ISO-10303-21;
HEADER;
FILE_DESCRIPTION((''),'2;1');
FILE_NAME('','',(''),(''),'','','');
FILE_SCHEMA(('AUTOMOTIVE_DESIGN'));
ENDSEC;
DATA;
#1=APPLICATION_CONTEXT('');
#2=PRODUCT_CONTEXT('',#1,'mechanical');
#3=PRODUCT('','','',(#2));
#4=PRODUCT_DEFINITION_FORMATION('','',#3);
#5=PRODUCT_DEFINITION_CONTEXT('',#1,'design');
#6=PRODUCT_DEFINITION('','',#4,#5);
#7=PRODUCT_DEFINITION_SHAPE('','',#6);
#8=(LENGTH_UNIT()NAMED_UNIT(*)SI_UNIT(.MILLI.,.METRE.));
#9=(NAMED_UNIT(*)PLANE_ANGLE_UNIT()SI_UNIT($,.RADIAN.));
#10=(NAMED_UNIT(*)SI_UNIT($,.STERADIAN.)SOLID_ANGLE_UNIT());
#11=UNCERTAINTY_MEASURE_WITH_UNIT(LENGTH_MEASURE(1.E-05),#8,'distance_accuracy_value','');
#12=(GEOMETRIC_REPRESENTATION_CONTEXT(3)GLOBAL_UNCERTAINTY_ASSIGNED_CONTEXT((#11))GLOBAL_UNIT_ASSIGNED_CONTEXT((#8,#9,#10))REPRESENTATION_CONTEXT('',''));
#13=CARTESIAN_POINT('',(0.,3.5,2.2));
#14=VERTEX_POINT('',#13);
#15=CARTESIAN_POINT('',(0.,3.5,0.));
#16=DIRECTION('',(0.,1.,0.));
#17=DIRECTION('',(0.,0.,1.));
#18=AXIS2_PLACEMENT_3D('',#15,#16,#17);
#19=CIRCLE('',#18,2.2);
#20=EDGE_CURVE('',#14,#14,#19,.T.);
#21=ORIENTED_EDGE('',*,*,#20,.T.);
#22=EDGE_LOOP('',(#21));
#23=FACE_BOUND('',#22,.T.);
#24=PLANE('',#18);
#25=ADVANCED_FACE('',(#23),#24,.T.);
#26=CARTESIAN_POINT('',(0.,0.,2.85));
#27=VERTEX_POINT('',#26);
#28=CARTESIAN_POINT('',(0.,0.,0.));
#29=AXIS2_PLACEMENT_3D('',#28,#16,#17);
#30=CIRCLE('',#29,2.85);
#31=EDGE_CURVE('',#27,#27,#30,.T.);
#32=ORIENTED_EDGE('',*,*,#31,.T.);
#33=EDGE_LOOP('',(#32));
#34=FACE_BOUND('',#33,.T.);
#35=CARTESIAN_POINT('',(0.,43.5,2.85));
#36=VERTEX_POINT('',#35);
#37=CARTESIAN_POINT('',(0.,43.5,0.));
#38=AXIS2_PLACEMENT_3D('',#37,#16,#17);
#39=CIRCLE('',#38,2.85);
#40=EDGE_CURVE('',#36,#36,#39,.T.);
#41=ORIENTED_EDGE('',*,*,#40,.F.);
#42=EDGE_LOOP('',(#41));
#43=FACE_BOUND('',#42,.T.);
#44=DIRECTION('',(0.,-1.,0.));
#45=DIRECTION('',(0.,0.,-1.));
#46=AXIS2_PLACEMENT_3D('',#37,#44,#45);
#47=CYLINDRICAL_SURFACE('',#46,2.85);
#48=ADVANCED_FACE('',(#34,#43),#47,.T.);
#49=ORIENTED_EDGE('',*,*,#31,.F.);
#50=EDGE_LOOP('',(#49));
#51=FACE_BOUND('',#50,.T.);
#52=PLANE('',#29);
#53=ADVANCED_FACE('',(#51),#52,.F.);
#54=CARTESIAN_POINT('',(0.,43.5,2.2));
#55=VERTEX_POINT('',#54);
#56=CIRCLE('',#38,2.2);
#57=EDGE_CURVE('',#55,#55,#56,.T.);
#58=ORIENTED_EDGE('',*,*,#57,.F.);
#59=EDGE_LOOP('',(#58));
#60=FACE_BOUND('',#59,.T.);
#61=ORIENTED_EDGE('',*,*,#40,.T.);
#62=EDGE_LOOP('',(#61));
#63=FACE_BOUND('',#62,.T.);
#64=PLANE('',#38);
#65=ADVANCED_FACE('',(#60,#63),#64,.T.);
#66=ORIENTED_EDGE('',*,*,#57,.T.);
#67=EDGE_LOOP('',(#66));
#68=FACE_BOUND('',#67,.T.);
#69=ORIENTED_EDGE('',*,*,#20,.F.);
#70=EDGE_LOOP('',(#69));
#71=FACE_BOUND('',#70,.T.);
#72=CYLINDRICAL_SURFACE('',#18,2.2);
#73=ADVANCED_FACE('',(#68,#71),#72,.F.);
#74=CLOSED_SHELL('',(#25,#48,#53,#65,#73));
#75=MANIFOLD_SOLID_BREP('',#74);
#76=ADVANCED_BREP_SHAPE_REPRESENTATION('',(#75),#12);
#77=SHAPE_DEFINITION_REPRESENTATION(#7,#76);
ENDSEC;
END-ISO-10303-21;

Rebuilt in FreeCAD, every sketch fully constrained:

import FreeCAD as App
import Part
import Sketcher
from FreeCAD import Vector

doc = App.newDocument("Part")
params = doc.addObject("Spreadsheet::Sheet", "Params")
for row, (alias, value) in enumerate([
    ("sketch1_diameter", "5.7 mm"),
    ("pad1_length", "43.5 mm"),
    ("sketch2_diameter", "4.4 mm"),
    ("pocket1_length", "40 mm"),
], start=1):
    params.set(f"A{row}", alias)
    params.set(f"B{row}", "=" + value)
    params.setAlias(f"B{row}", alias)

body = doc.addObject("PartDesign::Body", "Body")

sketch1 = body.newObject("Sketcher::SketchObject", "Sketch")
sketch1.AttachmentSupport = (doc.getObject("XZ_Plane"), [""])
sketch1.MapMode = "FlatFace"
sketch1.addGeometry(Part.Circle(Vector(0, 0, 0), Vector(0, 0, 1), 2.9), False)
sketch1.addConstraint([
    Sketcher.Constraint("Coincident", 0, 3, -1, 1),
    Sketcher.Constraint("Diameter", 0, 5.7),
])
sketch1.setExpression("Constraints[1]", "Params.sketch1_diameter")
pad1 = body.newObject("PartDesign::Pad", "Pad")
pad1.Profile = sketch1
pad1.setExpression("Length", "Params.pad1_length")
pad1.Reversed = True

sketch2 = body.newObject("Sketcher::SketchObject", "Sketch001")
sketch2.AttachmentSupport = (doc.getObject("XZ_Plane"), [""])
sketch2.MapMode = "FlatFace"
sketch2.AttachmentOffset = App.Placement(Vector(0, 0, -43.5), App.Rotation())
sketch2.addGeometry(Part.Circle(Vector(0, 0, 0), Vector(0, 0, 1), 2.2), False)
sketch2.addConstraint([
    Sketcher.Constraint("Coincident", 0, 3, -1, 1),
    Sketcher.Constraint("Diameter", 0, 4.4),
])
sketch2.setExpression("Constraints[1]", "Params.sketch2_diameter")
pocket1 = body.newObject("PartDesign::Pocket", "Pocket")
pocket1.Profile = sketch2
pocket1.setExpression("Length", "Params.pocket1_length")
pocket1.Reversed = True

doc.recompute()
